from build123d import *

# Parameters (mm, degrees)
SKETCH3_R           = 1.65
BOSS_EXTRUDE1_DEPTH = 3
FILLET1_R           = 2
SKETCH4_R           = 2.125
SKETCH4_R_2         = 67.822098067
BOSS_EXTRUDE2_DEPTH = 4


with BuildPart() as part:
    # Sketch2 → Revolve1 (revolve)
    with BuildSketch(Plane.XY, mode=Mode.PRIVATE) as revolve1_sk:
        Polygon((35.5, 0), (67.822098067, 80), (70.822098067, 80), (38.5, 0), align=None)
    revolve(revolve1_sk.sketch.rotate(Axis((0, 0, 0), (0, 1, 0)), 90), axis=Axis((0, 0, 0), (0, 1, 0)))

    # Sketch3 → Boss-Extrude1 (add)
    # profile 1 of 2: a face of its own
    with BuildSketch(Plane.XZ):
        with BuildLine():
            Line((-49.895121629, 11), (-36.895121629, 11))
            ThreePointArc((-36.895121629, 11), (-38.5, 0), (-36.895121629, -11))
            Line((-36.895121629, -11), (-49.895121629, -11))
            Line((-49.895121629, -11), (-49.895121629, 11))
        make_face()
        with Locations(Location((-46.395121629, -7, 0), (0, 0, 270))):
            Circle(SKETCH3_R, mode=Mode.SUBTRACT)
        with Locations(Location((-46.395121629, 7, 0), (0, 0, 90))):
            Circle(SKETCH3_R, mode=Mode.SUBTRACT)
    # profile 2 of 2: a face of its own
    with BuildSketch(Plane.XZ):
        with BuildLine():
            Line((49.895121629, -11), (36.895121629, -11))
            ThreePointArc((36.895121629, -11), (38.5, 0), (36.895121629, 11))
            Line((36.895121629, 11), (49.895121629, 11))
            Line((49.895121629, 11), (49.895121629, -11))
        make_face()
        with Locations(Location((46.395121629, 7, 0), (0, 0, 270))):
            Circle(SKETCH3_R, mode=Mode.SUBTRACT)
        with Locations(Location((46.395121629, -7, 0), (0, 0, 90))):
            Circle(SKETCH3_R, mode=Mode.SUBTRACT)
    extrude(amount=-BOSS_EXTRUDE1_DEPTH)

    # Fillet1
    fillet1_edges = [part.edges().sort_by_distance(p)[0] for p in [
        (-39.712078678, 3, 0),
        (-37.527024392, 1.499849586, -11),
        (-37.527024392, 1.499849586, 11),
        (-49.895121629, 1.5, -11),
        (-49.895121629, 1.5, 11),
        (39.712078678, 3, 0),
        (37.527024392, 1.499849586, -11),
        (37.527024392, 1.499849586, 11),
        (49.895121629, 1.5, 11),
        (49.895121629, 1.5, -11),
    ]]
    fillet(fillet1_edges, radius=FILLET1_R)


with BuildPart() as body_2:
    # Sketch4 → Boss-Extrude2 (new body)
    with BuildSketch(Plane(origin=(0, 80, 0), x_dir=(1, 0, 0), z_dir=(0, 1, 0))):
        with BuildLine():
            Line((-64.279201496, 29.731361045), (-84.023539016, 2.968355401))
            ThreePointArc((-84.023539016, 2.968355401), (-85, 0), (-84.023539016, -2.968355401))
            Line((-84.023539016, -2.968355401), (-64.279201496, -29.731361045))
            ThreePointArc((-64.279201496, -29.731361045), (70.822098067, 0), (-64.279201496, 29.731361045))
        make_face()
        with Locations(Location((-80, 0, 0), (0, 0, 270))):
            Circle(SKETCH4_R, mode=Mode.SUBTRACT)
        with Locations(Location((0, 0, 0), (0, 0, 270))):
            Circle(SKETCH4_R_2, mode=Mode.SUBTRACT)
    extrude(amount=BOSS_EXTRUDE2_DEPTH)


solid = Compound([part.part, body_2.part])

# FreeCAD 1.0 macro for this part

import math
import FreeCAD as App
import Part
import Sketcher
from FreeCAD import Vector
Q = App.Units.Quantity


def edges_at(feature, points):
    """Names of the edges that pass closest to the given points."""
    edges = feature.Shape.Edges
    near = lambda p: min(range(len(edges)), key=lambda i: edges[i].distToShape(Part.Vertex(*p))[0])
    return sorted({f"Edge{near(p) + 1}" for p in points})

doc = App.newDocument("Part")
body = doc.addObject("PartDesign::Body", "Body")

# Sketch on XY plane
sketch1 = body.newObject("Sketcher::SketchObject", "Sketch")
sketch1.AttachmentSupport = (doc.getObject("XY_Plane"), [""])
sketch1.MapMode = "FlatFace"
sketch1.addGeometry([
    Part.LineSegment(Vector(67.8, 80, 0), Vector(35.5, 0, 0)),
    Part.LineSegment(Vector(35.5, 0, 0), Vector(38.5, 0, 0)),
    Part.LineSegment(Vector(38.5, 0, 0), Vector(70.8, 80, 0)),
    Part.LineSegment(Vector(70.8, 80, 0), Vector(67.8, 80, 0)),
], False)
sketch1.addConstraint([
    Sketcher.Constraint("Coincident", 0, 2, 1, 1),
    Sketcher.Constraint("Coincident", 1, 2, 2, 1),
    Sketcher.Constraint("Coincident", 2, 2, 3, 1),
    Sketcher.Constraint("Coincident", 3, 2, 0, 1),
    Sketcher.Constraint("Horizontal", 1),
    Sketcher.Constraint("Horizontal", 3),
    Sketcher.Constraint("PointOnObject", 0, 2, -1),
    Sketcher.Constraint("Parallel", 0, 2),
    Sketcher.Constraint("DistanceX", 1, 1, 1, 2, 3.0),
    Sketcher.Constraint("Angle", 0, Q("-112 deg")),
    Sketcher.Constraint("DistanceY", -1, 1, 2, 2, 80.0),
    Sketcher.Constraint("DistanceX", -1, 1, 0, 2, 35.5),
])
revolution = body.newObject("PartDesign::Revolution", "Revolution")
revolution.Profile = sketch1
revolution.ReferenceAxis = (sketch1, ["V_Axis"])
revolution.Angle = 360

# Sketch on XZ plane
sketch2 = body.newObject("Sketcher::SketchObject", "Sketch001")
sketch2.AttachmentSupport = (doc.getObject("XZ_Plane"), [""])
sketch2.MapMode = "FlatFace"
sketch2.addGeometry([
    Part.LineSegment(Vector(-36.9, 11, 0), Vector(-49.9, 11, 0)),  # 0
    Part.LineSegment(Vector(-49.9, 11, 0), Vector(-49.9, -11, 0)),  # 1
    Part.LineSegment(Vector(-49.9, -11, 0), Vector(-36.9, -11, 0)),  # 2
    Part.ArcOfCircle(Part.Circle(Vector(0, 0, 0), Vector(0, 0, 1), 38.5), math.radians(163), math.radians(197)),  # 3
    Part.Circle(Vector(-46.4, -7, 0), Vector(0, 0, 1), 1.6),  # 4
    Part.Circle(Vector(-46.4, 7, 0), Vector(0, 0, 1), 1.6),  # 5
    Part.LineSegment(Vector(36.9, -11, 0), Vector(49.9, -11, 0)),  # 6
    Part.LineSegment(Vector(49.9, -11, 0), Vector(49.9, 11, 0)),  # 7
    Part.LineSegment(Vector(49.9, 11, 0), Vector(36.9, 11, 0)),  # 8
    Part.ArcOfCircle(Part.Circle(Vector(0, 0, 0), Vector(0, 0, 1), 38.5), math.radians(-17), math.radians(17)),  # 9
    Part.Circle(Vector(46.4, -7, 0), Vector(0, 0, 1), 1.6),  # 10
    Part.Circle(Vector(46.4, 7, 0), Vector(0, 0, 1), 1.6),  # 11
], False)
sketch2.addConstraint([
    Sketcher.Constraint("Coincident", 0, 2, 1, 1),
    Sketcher.Constraint("Coincident", 1, 2, 2, 1),
    Sketcher.Constraint("Coincident", 2, 2, 3, 2),
    Sketcher.Constraint("Coincident", 3, 1, 0, 1),
    Sketcher.Constraint("Coincident", 6, 2, 7, 1),
    Sketcher.Constraint("Coincident", 7, 2, 8, 1),
    Sketcher.Constraint("Coincident", 8, 2, 9, 2),
    Sketcher.Constraint("Coincident", 9, 1, 6, 1),
    Sketcher.Constraint("Horizontal", 0),
    Sketcher.Constraint("Vertical", 1),
    Sketcher.Constraint("Horizontal", 2),
    Sketcher.Constraint("Horizontal", 6),
    Sketcher.Constraint("Vertical", 7),
    Sketcher.Constraint("Horizontal", 8),
    Sketcher.Constraint("Coincident", 3, 3, -1, 1),
    Sketcher.Constraint("Coincident", 9, 3, -1, 1),
    Sketcher.Constraint("Equal", 4, 5),
    Sketcher.Constraint("Equal", 3, 9),
    Sketcher.Constraint("Equal", 5, 10),
    Sketcher.Constraint("Equal", 10, 11),
    Sketcher.Constraint("Symmetric", 5, 3, 10, 3, -1, 1),
    Sketcher.Constraint("Symmetric", 4, 3, 11, 3, -1, 1),
    Sketcher.Constraint("Symmetric", 0, 2, 6, 2, -1, 1),
    Sketcher.Constraint("Symmetric", 4, 3, 10, 3, -2),
    Sketcher.Constraint("Horizontal", 2, 2, 6, 2),
    Sketcher.Constraint("Horizontal", 3, 1, 7, 2),
    Sketcher.Constraint("Diameter", 4, 3.3),
    Sketcher.Constraint("Radius", 3, 38.5),
    Sketcher.Constraint("DistanceX", 0, 2, 0, 1, 13.0),
    Sketcher.Constraint("DistanceY", 1, 2, 1, 1, 22.0),
    Sketcher.Constraint("DistanceY", 4, 3, -1, 1, 7.0),
    Sketcher.Constraint("DistanceX", 0, 2, 5, 3, 3.5),
])
pad1 = body.newObject("PartDesign::Pad", "Pad")
pad1.Profile = sketch2
pad1.Length = 3
pad1.Reversed = True
doc.recompute()

fillet = body.newObject("PartDesign::Fillet", "Fillet")
fillet.Base = (pad1, edges_at(pad1, [
    (-39.712, 3, 0),
    (-37.527, 1.5, -11),
    (-37.527, 1.5, 11),
    (-49.895, 1.5, -11),
    (-49.895, 1.5, 11),
    (39.712, 3, 0),
    (37.527, 1.5, -11),
    (37.527, 1.5, 11),
    (49.895, 1.5, 11),
    (49.895, 1.5, -11),
]))
fillet.Radius = 2
body2 = doc.addObject("PartDesign::Body", "Body001")

# Sketch on XZ plane
sketch3 = body2.newObject("Sketcher::SketchObject", "Sketch002")
sketch3.AttachmentSupport = (doc.getObject("XZ_Plane001"), [""])
sketch3.MapMode = "FlatFace"
sketch3.AttachmentOffset = App.Placement(Vector(0, 0, -80), App.Rotation())
sketch3.addGeometry([
    Part.LineSegment(Vector(-64.3, -29.7, 0), Vector(-84, -3, 0)),  # 0
    Part.ArcOfCircle(Part.Circle(Vector(-80, 0, 0), Vector(0, 0, 1), 5), math.radians(144), math.radians(216)),  # 1
    Part.LineSegment(Vector(-84, 3, 0), Vector(-64.3, 29.7, 0)),  # 2
    Part.ArcOfCircle(Part.Circle(Vector(0, 0, 0), Vector(0, 0, 1), 70.8), math.radians(-155), math.radians(155)),  # 3
    Part.Circle(Vector(-80, 0, 0), Vector(0, 0, 1), 2.1),  # 4
    Part.Circle(Vector(0, 0, 0), Vector(0, 0, 1), 67.8),  # 5
], False)
sketch3.addConstraint([
    Sketcher.Constraint("Tangent", 0, 2, 1, 2),
    Sketcher.Constraint("Tangent", 1, 1, 2, 1),
    Sketcher.Constraint("Coincident", 2, 2, 3, 2),
    Sketcher.Constraint("Coincident", 3, 1, 0, 1),
    Sketcher.Constraint("Coincident", 3, 3, -1, 1),
    Sketcher.Constraint("Coincident", 5, 3, -1, 1),
    Sketcher.Constraint("Coincident", 4, 3, 1, 3),
    Sketcher.Constraint("Symmetric", 0, 2, 1, 1, -1),
    Sketcher.Constraint("Radius", 1, 5.0),
    Sketcher.Constraint("Diameter", 4, 4.25),
    Sketcher.Constraint("DistanceX", 1, 3, -1, 1, 80.0),
    Sketcher.Constraint("Radius", 3, 70.822098),
    Sketcher.Constraint("Diameter", 5, 135.644196),
    Sketcher.Constraint("DistanceX", 2, 2, -1, 1, 64.279201),
])
pad2 = body2.newObject("PartDesign::Pad", "Pad001")
pad2.Profile = sketch3
pad2.Length = 4
pad2.Reversed = True

doc.recompute()
